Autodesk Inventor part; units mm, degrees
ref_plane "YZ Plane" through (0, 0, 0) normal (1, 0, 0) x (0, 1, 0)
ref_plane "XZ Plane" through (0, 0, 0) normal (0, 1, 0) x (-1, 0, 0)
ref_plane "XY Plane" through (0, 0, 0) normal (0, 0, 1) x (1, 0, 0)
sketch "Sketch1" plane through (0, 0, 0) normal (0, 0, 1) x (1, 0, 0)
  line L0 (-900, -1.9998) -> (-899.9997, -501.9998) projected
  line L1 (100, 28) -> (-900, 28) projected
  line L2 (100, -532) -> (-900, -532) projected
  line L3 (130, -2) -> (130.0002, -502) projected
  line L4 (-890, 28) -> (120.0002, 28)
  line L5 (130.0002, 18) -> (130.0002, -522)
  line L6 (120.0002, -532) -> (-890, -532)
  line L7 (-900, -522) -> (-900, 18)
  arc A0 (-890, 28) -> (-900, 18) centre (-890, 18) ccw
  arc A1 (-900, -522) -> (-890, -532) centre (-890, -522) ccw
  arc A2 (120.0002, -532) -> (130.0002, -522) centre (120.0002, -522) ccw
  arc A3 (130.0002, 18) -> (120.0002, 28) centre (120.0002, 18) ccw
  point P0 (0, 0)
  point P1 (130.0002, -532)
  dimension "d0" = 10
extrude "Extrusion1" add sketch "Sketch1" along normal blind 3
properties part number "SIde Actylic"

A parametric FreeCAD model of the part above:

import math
import FreeCAD as App
import Part
import Sketcher

doc = App.newDocument("Part")
body = doc.addObject("PartDesign::Body", "Body")

sketch1 = body.newObject("Sketcher::SketchObject", "Sketch")
sketch1.AttachmentSupport = (doc.getObject("XY_Plane"), [""])
sketch1.MapMode = "FlatFace"
sketch1.addGeometry(Part.LineSegment(App.Vector(-900, 18, 0), App.Vector(-900, -2, 0)), False)
sketch1.addGeometry(Part.LineSegment(App.Vector(-900, -2, 0), App.Vector(-900, -502, 0)), False)
sketch1.addGeometry(Part.LineSegment(App.Vector(-900, -502, 0), App.Vector(-900, -522, 0)), False)
sketch1.addGeometry(Part.ArcOfCircle(Part.Circle(App.Vector(-890, -522, 0), App.Vector(0, 0, 1), 10), math.radians(180), math.radians(270)), False)
sketch1.addGeometry(Part.LineSegment(App.Vector(-890, -532, 0), App.Vector(120, -532, 0)), False)
sketch1.addGeometry(Part.ArcOfCircle(Part.Circle(App.Vector(120, -522, 0), App.Vector(0, 0, 1), 10), math.radians(-90), math.radians(0)), False)
sketch1.addGeometry(Part.LineSegment(App.Vector(130, -522, 0), App.Vector(130, -502, 0)), False)
sketch1.addGeometry(Part.LineSegment(App.Vector(130, -502, 0), App.Vector(130, -2, 0)), False)
sketch1.addGeometry(Part.LineSegment(App.Vector(130, -2, 0), App.Vector(130, 18, 0)), False)
sketch1.addGeometry(Part.ArcOfCircle(Part.Circle(App.Vector(120, 18, 0), App.Vector(0, 0, 1), 10), math.radians(0), math.radians(90)), False)
sketch1.addGeometry(Part.LineSegment(App.Vector(120, 28, 0), App.Vector(-890, 28, 0)), False)
sketch1.addGeometry(Part.ArcOfCircle(Part.Circle(App.Vector(-890, 18, 0), App.Vector(0, 0, 1), 10), math.radians(90), math.radians(180)), False)
sketch1.addConstraint(Sketcher.Constraint("Coincident", 0, 2, 1, 1))
sketch1.addConstraint(Sketcher.Constraint("Coincident", 1, 2, 2, 1))
sketch1.addConstraint(Sketcher.Constraint("Tangent", 2, 2, 3, 1))
sketch1.addConstraint(Sketcher.Constraint("Tangent", 3, 2, 4, 1))
sketch1.addConstraint(Sketcher.Constraint("Tangent", 4, 2, 5, 1))
sketch1.addConstraint(Sketcher.Constraint("Tangent", 5, 2, 6, 1))
sketch1.addConstraint(Sketcher.Constraint("Coincident", 6, 2, 7, 1))
sketch1.addConstraint(Sketcher.Constraint("Coincident", 7, 2, 8, 1))
sketch1.addConstraint(Sketcher.Constraint("Tangent", 8, 2, 9, 1))
sketch1.addConstraint(Sketcher.Constraint("Tangent", 9, 2, 10, 1))
sketch1.addConstraint(Sketcher.Constraint("Tangent", 10, 2, 11, 1))
sketch1.addConstraint(Sketcher.Constraint("Tangent", 11, 2, 0, 1))
sketch1.addConstraint(Sketcher.Constraint("Vertical", 0))
sketch1.addConstraint(Sketcher.Constraint("Vertical", 2))
sketch1.addConstraint(Sketcher.Constraint("Horizontal", 4))
sketch1.addConstraint(Sketcher.Constraint("Vertical", 6))
sketch1.addConstraint(Sketcher.Constraint("Vertical", 8))
sketch1.addConstraint(Sketcher.Constraint("Horizontal", 10))
sketch1.addConstraint(Sketcher.Constraint("Equal", 3, 5))
sketch1.addConstraint(Sketcher.Constraint("Equal", 5, 9))
sketch1.addConstraint(Sketcher.Constraint("Equal", 9, 11))
sketch1.addConstraint(Sketcher.Constraint("Parallel", 1, 7))
sketch1.addConstraint(Sketcher.Constraint("Horizontal", 0, 2, 7, 2))
sketch1.addConstraint(Sketcher.Constraint("Vertical", 5, 3, 9, 3))
sketch1.addConstraint(Sketcher.Constraint("Equal", 0, 6))
sketch1.addConstraint(Sketcher.Constraint("Equal", 1, 7))
sketch1.addConstraint(Sketcher.Constraint("Radius", 3, 10.0))
sketch1.addConstraint(Sketcher.Constraint("DistanceY", 6, 1, 6, 2, 20.0))
sketch1.addConstraint(Sketcher.Constraint("Distance", 1, 500.0))
sketch1.addConstraint(Sketcher.Constraint("DistanceX", 3, 3, -1, 1, 890.0))
sketch1.addConstraint(Sketcher.Constraint("DistanceY", 3, 3, -1, 1, 522.0))
sketch1.addConstraint(Sketcher.Constraint("DistanceX", -1, 1, 7, 2, 130.0))
pad1 = body.newObject("PartDesign::Pad", "Pad")
pad1.Profile = sketch1
pad1.Length = 3

doc.recompute()
